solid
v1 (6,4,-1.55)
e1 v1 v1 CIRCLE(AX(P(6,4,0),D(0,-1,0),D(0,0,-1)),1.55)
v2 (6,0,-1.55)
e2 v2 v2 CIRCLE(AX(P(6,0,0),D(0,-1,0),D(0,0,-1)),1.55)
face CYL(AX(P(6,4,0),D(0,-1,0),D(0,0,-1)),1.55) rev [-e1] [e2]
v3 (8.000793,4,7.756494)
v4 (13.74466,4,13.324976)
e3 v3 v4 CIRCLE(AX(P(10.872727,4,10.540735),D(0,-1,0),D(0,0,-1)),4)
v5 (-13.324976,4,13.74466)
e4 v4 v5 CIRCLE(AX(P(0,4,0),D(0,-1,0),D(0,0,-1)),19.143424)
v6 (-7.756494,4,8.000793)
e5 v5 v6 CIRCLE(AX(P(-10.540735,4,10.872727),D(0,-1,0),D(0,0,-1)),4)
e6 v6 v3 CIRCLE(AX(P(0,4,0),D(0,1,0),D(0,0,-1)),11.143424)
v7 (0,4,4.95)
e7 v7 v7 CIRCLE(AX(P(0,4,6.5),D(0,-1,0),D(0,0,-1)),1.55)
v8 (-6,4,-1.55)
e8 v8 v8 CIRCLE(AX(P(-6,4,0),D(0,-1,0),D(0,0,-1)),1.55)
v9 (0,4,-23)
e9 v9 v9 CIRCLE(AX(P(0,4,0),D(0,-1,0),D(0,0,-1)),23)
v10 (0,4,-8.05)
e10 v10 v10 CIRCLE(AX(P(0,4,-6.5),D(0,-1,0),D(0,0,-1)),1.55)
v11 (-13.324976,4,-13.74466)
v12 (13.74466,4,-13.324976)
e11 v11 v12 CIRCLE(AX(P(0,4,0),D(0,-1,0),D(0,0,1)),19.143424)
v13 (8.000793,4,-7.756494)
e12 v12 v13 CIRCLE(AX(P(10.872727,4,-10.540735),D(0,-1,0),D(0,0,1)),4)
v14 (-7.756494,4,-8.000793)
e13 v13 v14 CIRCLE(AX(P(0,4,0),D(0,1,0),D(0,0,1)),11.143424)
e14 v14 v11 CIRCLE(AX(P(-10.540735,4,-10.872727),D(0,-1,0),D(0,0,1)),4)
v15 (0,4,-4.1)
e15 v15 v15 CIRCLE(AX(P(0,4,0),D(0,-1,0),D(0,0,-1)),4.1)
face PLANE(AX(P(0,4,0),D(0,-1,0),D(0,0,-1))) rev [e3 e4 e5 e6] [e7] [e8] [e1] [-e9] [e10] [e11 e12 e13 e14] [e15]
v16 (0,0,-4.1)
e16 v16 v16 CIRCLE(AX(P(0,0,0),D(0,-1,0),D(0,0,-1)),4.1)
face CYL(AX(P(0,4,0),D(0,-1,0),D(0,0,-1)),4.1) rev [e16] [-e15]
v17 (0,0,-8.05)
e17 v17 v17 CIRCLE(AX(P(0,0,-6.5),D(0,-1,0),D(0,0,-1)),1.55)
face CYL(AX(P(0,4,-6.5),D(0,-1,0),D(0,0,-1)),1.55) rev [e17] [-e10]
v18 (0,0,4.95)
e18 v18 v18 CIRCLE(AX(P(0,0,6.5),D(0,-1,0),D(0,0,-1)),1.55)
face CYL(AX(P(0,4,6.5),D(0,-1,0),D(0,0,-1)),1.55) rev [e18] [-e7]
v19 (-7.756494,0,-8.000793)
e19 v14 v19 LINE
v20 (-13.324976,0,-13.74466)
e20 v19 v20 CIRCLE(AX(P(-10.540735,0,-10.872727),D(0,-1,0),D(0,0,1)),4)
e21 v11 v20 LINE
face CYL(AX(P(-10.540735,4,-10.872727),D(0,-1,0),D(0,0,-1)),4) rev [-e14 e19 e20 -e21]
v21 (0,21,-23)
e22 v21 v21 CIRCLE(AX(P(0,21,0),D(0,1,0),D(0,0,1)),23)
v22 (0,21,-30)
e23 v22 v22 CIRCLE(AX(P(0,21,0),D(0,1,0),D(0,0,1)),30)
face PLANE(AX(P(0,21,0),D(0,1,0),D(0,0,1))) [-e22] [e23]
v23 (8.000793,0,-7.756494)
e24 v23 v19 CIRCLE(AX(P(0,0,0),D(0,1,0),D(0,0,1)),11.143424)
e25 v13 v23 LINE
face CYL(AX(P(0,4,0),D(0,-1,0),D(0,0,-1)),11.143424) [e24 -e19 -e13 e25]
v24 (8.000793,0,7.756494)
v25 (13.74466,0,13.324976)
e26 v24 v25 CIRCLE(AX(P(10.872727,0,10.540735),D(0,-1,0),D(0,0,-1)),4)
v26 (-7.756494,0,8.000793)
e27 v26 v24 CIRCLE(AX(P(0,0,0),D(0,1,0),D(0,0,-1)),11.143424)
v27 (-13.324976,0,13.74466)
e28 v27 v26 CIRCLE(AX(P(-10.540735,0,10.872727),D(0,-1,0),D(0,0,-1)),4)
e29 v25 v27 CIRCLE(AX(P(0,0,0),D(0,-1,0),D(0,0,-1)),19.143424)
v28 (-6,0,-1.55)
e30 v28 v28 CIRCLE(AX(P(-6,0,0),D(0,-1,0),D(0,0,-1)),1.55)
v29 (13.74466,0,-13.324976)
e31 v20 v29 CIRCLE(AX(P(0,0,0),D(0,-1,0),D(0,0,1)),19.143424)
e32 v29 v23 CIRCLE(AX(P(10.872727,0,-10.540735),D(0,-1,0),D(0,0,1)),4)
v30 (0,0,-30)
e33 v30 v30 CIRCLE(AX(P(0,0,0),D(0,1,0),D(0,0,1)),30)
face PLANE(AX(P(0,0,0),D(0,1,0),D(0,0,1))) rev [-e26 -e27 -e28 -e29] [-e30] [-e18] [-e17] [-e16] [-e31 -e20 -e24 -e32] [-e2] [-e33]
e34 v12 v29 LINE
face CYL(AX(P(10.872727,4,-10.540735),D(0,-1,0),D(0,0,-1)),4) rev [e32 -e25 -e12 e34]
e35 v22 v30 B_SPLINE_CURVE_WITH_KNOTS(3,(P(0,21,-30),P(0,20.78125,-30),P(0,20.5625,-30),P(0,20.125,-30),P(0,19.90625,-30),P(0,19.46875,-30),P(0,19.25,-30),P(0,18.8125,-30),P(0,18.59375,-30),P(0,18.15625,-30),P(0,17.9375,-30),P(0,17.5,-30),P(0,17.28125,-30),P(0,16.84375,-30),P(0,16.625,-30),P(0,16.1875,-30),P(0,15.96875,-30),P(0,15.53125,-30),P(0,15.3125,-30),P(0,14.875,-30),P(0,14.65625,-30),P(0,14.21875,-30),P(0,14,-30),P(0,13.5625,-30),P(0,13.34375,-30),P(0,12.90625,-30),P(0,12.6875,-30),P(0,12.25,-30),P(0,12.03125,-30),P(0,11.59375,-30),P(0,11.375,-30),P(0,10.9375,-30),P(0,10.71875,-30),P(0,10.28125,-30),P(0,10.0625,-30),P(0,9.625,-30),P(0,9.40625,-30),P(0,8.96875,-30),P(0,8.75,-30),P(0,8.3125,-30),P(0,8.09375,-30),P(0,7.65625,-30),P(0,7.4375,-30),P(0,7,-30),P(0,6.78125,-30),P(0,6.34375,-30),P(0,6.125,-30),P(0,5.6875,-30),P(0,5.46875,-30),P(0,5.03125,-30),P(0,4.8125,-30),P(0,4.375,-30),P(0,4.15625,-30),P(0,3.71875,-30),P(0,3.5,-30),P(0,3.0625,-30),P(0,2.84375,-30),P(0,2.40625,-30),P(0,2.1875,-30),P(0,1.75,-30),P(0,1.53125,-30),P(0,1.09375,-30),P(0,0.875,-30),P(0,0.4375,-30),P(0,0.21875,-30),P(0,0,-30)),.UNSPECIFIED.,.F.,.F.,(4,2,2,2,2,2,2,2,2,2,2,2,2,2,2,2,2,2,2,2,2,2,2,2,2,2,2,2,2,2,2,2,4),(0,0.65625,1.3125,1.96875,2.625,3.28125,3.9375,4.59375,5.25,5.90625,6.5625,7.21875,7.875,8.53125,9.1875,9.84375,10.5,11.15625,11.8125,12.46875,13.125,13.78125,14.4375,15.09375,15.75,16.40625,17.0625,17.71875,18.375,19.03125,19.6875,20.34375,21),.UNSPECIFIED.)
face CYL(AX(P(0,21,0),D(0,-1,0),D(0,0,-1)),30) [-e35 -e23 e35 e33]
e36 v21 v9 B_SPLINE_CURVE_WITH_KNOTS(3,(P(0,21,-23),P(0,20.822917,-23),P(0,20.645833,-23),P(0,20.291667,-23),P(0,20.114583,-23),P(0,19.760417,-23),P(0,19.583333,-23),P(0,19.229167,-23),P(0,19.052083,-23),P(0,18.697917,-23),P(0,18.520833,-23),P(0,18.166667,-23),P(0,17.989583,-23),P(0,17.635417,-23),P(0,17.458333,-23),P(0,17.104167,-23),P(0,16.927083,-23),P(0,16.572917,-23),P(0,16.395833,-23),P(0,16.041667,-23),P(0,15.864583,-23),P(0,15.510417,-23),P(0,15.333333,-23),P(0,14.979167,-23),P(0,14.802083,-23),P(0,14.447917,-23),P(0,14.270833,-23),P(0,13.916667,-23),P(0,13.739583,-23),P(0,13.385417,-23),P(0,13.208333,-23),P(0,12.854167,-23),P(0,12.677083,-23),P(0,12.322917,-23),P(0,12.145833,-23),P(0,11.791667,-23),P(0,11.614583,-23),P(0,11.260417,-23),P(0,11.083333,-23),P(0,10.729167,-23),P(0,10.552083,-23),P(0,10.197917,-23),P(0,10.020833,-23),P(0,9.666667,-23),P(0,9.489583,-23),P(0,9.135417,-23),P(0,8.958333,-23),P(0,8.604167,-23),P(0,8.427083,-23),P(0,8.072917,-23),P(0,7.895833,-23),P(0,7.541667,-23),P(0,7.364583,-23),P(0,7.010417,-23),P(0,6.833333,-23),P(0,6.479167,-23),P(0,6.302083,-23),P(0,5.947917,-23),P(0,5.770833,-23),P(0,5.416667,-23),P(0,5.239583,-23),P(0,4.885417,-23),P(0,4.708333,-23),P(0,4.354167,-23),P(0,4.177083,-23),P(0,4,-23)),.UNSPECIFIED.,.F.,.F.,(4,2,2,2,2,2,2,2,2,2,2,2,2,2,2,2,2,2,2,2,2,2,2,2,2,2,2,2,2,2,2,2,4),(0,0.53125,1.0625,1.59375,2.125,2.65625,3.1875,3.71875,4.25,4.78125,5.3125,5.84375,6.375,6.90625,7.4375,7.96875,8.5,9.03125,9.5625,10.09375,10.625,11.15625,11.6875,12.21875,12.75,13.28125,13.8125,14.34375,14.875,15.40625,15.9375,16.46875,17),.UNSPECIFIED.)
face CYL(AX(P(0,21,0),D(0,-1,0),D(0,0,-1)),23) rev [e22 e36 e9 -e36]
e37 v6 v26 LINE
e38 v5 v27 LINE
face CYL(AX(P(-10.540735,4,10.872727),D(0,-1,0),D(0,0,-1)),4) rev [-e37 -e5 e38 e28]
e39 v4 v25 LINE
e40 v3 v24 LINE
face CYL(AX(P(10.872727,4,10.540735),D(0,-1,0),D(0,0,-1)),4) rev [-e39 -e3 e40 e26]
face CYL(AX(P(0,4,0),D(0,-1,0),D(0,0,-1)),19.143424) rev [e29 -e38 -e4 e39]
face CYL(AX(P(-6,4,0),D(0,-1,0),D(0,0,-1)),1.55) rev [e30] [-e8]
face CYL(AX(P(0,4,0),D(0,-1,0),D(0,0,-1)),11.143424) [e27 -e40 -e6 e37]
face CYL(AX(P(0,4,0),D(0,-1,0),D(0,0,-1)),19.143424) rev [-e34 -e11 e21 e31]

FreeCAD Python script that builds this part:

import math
import FreeCAD as App
import Part
import Sketcher
Q = App.Units.Quantity

doc = App.newDocument("Part")
body = doc.addObject("PartDesign::Body", "Body")

# Sketch on XZ plane
sketch1 = body.newObject("Sketcher::SketchObject", "Sketch")
sketch1.AttachmentSupport = (doc.getObject("XZ_Plane"), [""])
sketch1.MapMode = "FlatFace"
sketch1.addGeometry(Part.Circle(App.Vector(0, 0, 0), App.Vector(0, 0, 1), 30), False)
sketch1.addGeometry(Part.Circle(App.Vector(0, 0, 0), App.Vector(0, 0, 1), 23), False)
sketch1.addConstraint(Sketcher.Constraint("Coincident", 0, 3, -1, 1))
sketch1.addConstraint(Sketcher.Constraint("Coincident", 1, 3, -1, 1))
sketch1.addConstraint(Sketcher.Constraint("Diameter", 0, Q("60 mm")))
sketch1.addConstraint(Sketcher.Constraint("Diameter", 1, Q("46 mm")))
pad1 = body.newObject("PartDesign::Pad", "Pad")
pad1.Profile = sketch1
pad1.Length = 21
pad1.Reversed = True

# Sketch on XZ plane
sketch2 = body.newObject("Sketcher::SketchObject", "Sketch001")
sketch2.AttachmentSupport = (doc.getObject("XZ_Plane"), [""])
sketch2.MapMode = "FlatFace"
sketch2.addGeometry(Part.Circle(App.Vector(0, 0, 0), App.Vector(0, 0, 1), 23), False)
sketch2.addGeometry(Part.ArcOfCircle(Part.Circle(App.Vector(0, 0, 0), App.Vector(0, 0, 1), 19.143424), math.radians(44.111765), math.radians(134.111765)), False)
sketch2.addGeometry(Part.ArcOfCircle(Part.Circle(App.Vector(10.872727, 10.540735, 0), App.Vector(0, 0, 1), 4), math.radians(-135.888235), math.radians(44.111764)), False)
sketch2.addGeometry(Part.ArcOfCircle(Part.Circle(App.Vector(0, 0, 0), App.Vector(0, 0, 1), 11.143424), math.radians(44.111765), math.radians(134.111764)), False)
sketch2.addGeometry(Part.ArcOfCircle(Part.Circle(App.Vector(-10.540735, 10.872727, 0), App.Vector(0, 0, 1), 4), math.radians(134.111765), math.radians(314.111764)), False)
sketch2.addGeometry(Part.Circle(App.Vector(0, 6.5, 0), App.Vector(0, 0, 1), 1.55), False)
sketch2.addGeometry(Part.Circle(App.Vector(-6, 0, 0), App.Vector(0, 0, 1), 1.55), False)
sketch2.addGeometry(Part.Circle(App.Vector(0, 0, 0), App.Vector(0, 0, 1), 4.1), False)
sketch2.addGeometry(Part.Circle(App.Vector(0, -6.5, 0), App.Vector(0, 0, 1), 1.55), False)
sketch2.addGeometry(Part.Circle(App.Vector(6, 0, 0), App.Vector(0, 0, 1), 1.55), False)
sketch2.addGeometry(Part.ArcOfCircle(Part.Circle(App.Vector(10.872727, -10.540735, 0), App.Vector(0, 0, 1), 4), math.radians(-44.111764), math.radians(135.888235)), False)
sketch2.addGeometry(Part.ArcOfCircle(Part.Circle(App.Vector(0, 0, 0), App.Vector(0, 0, 1), 19.143424), math.radians(-134.111765), math.radians(-44.111765)), False)
sketch2.addGeometry(Part.ArcOfCircle(Part.Circle(App.Vector(-10.540735, -10.872727, 0), App.Vector(0, 0, 1), 4), math.radians(45.888236), math.radians(225.888235)), False)
sketch2.addGeometry(Part.ArcOfCircle(Part.Circle(App.Vector(0, 0, 0), App.Vector(0, 0, 1), 11.143424), math.radians(-134.111764), math.radians(-44.111765)), False)
sketch2.addConstraint(Sketcher.Constraint("Tangent", 1, 1, 2, 2))
sketch2.addConstraint(Sketcher.Constraint("Tangent", 2, 1, 3, 1))
sketch2.addConstraint(Sketcher.Constraint("Tangent", 3, 2, 4, 2))
sketch2.addConstraint(Sketcher.Constraint("Tangent", 4, 1, 1, 2))
sketch2.addConstraint(Sketcher.Constraint("Tangent", 10, 1, 11, 2))
sketch2.addConstraint(Sketcher.Constraint("Tangent", 11, 1, 12, 2))
sketch2.addConstraint(Sketcher.Constraint("Tangent", 12, 1, 13, 1))
sketch2.addConstraint(Sketcher.Constraint("Tangent", 13, 2, 10, 2))
sketch2.addConstraint(Sketcher.Constraint("Coincident", 0, 3, -1, 1))
sketch2.addConstraint(Sketcher.Constraint("Coincident", 1, 3, -1, 1))
sketch2.addConstraint(Sketcher.Constraint("Coincident", 3, 3, -1, 1))
sketch2.addConstraint(Sketcher.Constraint("Coincident", 7, 3, -1, 1))
sketch2.addConstraint(Sketcher.Constraint("Coincident", 11, 3, -1, 1))
sketch2.addConstraint(Sketcher.Constraint("Coincident", 13, 3, -1, 1))
sketch2.addConstraint(Sketcher.Constraint("Equal", 5, 6))
sketch2.addConstraint(Sketcher.Constraint("Equal", 6, 8))
sketch2.addConstraint(Sketcher.Constraint("Equal", 8, 9))
sketch2.addConstraint(Sketcher.Constraint("Equal", 4, 10))
sketch2.addConstraint(Sketcher.Constraint("Equal", 1, 11))
sketch2.addConstraint(Sketcher.Constraint("Symmetric", 5, 3, 8, 3, -1, 1))
sketch2.addConstraint(Sketcher.Constraint("Symmetric", 6, 3, 9, 3, -1, 1))
sketch2.addConstraint(Sketcher.Constraint("PointOnObject", 5, 3, -2))
sketch2.addConstraint(Sketcher.Constraint("PointOnObject", 6, 3, -1))
sketch2.addConstraint(Sketcher.Constraint("Vertical", 2, 3, 10, 3))
sketch2.addConstraint(Sketcher.Constraint("Vertical", 4, 3, 12, 3))
sketch2.addConstraint(Sketcher.Constraint("Diameter", 0, Q("46 mm")))
sketch2.addConstraint(Sketcher.Constraint("Radius", 2, Q("4 mm")))
sketch2.addConstraint(Sketcher.Constraint("Diameter", 5, Q("3.1 mm")))
sketch2.addConstraint(Sketcher.Constraint("Diameter", 7, Q("8.2 mm")))
sketch2.addConstraint(Sketcher.Constraint("DistanceX", 6, 3, -1, 1, Q("6 mm")))
sketch2.addConstraint(Sketcher.Constraint("DistanceY", -1, 1, 5, 3, Q("6.5 mm")))
sketch2.addConstraint(Sketcher.Constraint("Radius", 1, Q("19.143424 mm")))
sketch2.addConstraint(Sketcher.Constraint("DistanceX", -1, 1, 1, 1, Q("13.74466 mm")))
sketch2.addConstraint(Sketcher.Constraint("DistanceY", -1, 1, 4, 1, Q("13.74466 mm")))
pad2 = body.newObject("PartDesign::Pad", "Pad001")
pad2.Profile = sketch2
pad2.Length = 4
pad2.Reversed = True

doc.recompute()
